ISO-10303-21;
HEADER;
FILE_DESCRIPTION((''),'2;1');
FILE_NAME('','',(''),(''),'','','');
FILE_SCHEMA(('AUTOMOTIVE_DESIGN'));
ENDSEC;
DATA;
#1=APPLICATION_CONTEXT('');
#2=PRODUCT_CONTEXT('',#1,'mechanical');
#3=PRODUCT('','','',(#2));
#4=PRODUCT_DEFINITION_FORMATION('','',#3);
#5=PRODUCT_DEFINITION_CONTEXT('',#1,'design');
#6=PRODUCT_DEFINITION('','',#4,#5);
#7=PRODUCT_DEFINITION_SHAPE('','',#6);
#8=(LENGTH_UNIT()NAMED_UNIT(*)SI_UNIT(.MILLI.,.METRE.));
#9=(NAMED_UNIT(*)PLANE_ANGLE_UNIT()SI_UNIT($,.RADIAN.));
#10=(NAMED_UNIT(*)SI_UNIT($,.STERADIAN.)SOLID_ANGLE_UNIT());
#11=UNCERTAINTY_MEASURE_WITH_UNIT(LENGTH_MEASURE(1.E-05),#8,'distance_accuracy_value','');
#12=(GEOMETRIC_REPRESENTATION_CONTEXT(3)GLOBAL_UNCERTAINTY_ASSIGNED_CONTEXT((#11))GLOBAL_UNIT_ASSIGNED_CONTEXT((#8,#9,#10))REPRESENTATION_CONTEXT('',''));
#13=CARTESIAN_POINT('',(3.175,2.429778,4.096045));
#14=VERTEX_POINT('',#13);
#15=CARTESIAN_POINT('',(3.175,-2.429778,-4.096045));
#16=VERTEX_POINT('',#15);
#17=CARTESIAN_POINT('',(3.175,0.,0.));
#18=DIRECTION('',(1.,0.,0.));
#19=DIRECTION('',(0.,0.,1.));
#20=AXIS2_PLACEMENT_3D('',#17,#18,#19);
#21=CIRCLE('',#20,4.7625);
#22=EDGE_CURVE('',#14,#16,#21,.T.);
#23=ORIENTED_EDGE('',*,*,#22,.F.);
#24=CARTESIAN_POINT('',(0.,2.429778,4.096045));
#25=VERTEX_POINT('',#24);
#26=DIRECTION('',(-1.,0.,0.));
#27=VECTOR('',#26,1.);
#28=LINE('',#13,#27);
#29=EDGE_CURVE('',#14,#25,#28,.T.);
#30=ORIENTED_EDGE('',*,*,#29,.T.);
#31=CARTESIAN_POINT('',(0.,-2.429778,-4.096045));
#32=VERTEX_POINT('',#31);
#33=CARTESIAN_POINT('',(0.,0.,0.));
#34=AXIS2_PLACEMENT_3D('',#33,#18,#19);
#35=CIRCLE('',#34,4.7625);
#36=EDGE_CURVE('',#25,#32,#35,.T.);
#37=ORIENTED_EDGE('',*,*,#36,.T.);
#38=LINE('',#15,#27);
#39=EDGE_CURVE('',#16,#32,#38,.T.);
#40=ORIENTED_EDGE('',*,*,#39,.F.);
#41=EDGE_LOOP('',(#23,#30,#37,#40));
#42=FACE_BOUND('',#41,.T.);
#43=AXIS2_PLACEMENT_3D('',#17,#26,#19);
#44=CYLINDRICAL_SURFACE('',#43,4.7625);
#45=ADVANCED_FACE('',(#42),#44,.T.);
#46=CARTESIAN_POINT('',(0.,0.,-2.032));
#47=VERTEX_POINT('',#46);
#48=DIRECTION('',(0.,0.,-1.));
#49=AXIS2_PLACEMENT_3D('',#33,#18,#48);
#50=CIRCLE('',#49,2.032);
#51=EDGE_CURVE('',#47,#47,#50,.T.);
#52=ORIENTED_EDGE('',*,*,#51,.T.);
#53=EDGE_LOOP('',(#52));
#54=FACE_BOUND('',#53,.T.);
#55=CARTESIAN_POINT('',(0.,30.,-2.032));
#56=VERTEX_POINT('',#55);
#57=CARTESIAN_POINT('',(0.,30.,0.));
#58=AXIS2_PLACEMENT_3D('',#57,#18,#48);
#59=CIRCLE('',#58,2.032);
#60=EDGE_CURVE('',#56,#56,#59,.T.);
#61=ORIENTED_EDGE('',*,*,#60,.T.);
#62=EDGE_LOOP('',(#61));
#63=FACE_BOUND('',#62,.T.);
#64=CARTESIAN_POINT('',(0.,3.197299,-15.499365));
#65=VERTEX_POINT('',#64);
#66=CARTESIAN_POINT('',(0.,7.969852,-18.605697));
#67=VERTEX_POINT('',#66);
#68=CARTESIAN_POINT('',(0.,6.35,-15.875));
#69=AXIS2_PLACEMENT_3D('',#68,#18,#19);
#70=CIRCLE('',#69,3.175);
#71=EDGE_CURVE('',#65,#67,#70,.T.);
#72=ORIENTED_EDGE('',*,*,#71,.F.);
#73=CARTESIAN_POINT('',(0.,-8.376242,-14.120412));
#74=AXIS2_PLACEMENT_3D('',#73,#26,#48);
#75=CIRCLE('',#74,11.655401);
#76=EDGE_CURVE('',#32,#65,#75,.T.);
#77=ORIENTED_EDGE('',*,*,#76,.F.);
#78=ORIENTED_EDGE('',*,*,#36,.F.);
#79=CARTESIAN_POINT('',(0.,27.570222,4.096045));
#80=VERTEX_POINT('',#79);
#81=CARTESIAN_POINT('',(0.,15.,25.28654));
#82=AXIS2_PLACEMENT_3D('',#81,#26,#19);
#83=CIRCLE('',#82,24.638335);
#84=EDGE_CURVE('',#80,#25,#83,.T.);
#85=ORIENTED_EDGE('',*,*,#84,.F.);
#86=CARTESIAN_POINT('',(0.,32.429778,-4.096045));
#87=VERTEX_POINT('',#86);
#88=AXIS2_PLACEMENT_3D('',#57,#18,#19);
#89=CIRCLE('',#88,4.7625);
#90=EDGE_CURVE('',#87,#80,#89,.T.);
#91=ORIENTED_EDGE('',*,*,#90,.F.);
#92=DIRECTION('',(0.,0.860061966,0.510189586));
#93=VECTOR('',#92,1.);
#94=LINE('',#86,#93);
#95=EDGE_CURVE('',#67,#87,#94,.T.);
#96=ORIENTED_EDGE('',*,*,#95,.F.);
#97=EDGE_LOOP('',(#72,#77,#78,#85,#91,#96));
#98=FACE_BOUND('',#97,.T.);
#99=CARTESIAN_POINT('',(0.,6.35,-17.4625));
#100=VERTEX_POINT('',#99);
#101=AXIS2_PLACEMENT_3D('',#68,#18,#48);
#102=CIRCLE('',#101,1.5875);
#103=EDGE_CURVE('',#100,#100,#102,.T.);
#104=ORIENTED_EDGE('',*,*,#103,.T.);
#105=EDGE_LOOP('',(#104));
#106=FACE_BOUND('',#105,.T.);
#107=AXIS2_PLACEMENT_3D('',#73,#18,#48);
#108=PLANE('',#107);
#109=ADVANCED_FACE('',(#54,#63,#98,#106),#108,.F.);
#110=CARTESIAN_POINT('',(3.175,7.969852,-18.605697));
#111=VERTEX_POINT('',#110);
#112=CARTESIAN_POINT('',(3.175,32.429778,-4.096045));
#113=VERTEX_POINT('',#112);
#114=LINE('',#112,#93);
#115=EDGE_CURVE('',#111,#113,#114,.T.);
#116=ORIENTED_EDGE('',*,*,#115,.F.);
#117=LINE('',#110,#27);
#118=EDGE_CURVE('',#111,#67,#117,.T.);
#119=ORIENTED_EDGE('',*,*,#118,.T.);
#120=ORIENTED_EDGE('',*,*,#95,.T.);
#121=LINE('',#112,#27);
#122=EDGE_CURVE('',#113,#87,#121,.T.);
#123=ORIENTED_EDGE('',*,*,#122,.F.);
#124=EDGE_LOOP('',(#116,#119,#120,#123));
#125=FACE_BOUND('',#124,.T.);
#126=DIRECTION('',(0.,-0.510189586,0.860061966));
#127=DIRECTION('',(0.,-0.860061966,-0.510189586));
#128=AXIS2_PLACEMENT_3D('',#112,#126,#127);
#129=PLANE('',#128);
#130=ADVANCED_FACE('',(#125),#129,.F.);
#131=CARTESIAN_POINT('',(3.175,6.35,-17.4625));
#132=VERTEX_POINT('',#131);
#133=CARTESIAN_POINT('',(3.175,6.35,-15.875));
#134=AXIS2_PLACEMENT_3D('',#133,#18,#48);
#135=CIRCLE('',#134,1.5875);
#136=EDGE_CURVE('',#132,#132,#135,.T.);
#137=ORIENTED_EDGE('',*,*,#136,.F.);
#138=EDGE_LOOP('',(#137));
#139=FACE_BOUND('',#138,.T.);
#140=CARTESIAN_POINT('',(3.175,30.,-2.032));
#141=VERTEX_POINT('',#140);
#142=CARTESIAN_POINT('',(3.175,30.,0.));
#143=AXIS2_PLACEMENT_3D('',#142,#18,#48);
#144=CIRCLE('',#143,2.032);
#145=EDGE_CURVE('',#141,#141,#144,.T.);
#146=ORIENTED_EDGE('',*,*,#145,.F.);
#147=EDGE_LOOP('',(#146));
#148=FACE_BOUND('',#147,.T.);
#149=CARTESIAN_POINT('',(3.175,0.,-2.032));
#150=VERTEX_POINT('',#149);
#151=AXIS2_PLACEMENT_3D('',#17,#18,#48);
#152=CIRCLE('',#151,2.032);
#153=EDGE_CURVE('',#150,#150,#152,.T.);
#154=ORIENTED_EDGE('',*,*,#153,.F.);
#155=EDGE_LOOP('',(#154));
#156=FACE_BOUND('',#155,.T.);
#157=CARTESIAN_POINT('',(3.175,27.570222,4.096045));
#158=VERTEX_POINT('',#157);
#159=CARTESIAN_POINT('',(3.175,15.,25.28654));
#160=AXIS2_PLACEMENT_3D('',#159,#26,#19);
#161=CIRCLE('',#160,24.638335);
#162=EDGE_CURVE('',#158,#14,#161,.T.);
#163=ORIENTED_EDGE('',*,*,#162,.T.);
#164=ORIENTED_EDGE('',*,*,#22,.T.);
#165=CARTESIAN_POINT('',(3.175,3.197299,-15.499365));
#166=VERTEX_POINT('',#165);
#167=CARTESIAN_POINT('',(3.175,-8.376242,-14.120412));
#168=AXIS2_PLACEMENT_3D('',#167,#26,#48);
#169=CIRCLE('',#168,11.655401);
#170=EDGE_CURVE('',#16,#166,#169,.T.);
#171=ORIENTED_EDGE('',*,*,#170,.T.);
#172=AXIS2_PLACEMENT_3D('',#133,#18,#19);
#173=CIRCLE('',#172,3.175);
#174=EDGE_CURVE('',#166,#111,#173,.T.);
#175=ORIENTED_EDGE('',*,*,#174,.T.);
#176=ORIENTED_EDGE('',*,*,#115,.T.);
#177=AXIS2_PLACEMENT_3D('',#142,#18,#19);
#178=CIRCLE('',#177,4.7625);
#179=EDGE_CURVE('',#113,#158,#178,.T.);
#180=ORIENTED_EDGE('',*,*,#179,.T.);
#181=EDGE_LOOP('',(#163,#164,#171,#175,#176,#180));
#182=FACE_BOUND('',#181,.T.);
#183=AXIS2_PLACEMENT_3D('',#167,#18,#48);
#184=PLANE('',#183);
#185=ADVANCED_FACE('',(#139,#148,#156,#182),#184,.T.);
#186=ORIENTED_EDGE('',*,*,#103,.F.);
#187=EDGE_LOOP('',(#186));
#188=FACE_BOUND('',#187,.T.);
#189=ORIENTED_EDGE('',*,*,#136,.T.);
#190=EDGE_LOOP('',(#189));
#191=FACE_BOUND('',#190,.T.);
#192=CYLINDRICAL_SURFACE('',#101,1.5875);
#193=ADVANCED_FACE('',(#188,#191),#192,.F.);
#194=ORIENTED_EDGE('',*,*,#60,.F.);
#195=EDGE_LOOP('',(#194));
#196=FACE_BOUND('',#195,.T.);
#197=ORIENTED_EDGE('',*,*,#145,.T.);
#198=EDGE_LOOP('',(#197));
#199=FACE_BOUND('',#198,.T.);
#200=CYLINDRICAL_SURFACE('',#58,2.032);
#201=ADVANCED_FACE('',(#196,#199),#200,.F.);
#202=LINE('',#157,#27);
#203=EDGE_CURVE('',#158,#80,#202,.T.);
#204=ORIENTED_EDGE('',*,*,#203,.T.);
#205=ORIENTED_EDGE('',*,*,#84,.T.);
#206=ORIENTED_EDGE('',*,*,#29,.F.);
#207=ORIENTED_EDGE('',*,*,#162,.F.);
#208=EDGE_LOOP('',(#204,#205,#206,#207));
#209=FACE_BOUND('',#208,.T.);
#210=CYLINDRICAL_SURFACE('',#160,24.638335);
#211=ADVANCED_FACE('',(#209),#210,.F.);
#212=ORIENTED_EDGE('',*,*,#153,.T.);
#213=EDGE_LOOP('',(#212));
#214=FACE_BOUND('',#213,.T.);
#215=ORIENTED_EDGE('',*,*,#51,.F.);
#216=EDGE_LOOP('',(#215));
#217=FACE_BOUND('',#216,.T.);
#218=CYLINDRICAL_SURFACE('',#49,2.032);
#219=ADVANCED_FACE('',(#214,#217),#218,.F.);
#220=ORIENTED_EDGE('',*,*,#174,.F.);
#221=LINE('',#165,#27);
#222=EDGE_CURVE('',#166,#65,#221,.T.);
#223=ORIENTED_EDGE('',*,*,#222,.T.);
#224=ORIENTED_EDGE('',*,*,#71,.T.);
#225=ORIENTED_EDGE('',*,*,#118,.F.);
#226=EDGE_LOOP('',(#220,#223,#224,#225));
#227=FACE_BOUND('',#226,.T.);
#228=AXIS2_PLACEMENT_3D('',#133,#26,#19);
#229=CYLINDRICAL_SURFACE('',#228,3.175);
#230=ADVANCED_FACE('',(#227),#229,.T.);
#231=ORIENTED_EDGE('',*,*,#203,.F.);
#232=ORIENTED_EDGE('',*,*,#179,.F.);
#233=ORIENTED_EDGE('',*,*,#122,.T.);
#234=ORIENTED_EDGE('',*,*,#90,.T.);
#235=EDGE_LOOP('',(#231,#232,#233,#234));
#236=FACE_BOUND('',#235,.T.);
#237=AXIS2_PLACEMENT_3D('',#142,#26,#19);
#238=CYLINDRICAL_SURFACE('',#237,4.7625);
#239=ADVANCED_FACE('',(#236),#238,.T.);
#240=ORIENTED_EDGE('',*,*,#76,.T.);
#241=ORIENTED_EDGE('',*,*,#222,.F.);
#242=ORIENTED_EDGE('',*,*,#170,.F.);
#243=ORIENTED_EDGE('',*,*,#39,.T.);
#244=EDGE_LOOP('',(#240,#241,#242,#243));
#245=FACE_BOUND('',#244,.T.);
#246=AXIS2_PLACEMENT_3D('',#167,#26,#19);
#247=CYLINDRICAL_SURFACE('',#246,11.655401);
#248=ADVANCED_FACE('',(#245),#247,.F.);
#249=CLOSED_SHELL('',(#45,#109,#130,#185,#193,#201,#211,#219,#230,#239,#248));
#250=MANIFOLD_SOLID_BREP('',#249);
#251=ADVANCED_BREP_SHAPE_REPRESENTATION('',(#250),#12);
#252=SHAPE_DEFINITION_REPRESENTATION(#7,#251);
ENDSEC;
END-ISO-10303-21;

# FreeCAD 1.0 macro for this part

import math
import FreeCAD as App
import Part
import Sketcher
from FreeCAD import Vector
Q = App.Units.Quantity

doc = App.newDocument("Part")
body = doc.addObject("PartDesign::Body", "Body")

# Sketch on YZ plane
sketch1 = body.newObject("Sketcher::SketchObject", "Sketch")
sketch1.AttachmentSupport = (doc.getObject("YZ_Plane"), [""])
sketch1.MapMode = "FlatFace"
sketch1.addGeometry([
    Part.LineSegment(Vector(8, -18.6, 0), Vector(32.4, -4.1, 0)),  # 0
    Part.ArcOfCircle(Part.Circle(Vector(30, 0, 0), Vector(0, 0, 1), 4.8), math.radians(-59), math.radians(121)),  # 1
    Part.ArcOfCircle(Part.Circle(Vector(15, 25.3, 0), Vector(0, 0, 1), 24.6), math.radians(-121), math.radians(-59)),  # 2
    Part.ArcOfCircle(Part.Circle(Vector(0, 0, 0), Vector(0, 0, 1), 4.8), math.radians(59), math.radians(239)),  # 3
    Part.ArcOfCircle(Part.Circle(Vector(-8.4, -14.1, 0), Vector(0, 0, 1), 11.7), math.radians(-7), math.radians(59)),  # 4
    Part.ArcOfCircle(Part.Circle(Vector(6.3, -15.9, 0), Vector(0, 0, 1), 3.2), math.radians(173), math.radians(301)),  # 5
], False)
sketch1.addConstraint([
    Sketcher.Constraint("Tangent", 0, 2, 1, 1),
    Sketcher.Constraint("Tangent", 1, 2, 2, 2),
    Sketcher.Constraint("Tangent", 2, 1, 3, 1),
    Sketcher.Constraint("Tangent", 3, 2, 4, 2),
    Sketcher.Constraint("Tangent", 4, 1, 5, 1),
    Sketcher.Constraint("Tangent", 5, 2, 0, 1),
    Sketcher.Constraint("Coincident", 3, 3, -1, 1),
    Sketcher.Constraint("Equal", 1, 3),
    Sketcher.Constraint("PointOnObject", 1, 3, -1),
    Sketcher.Constraint("Horizontal", 0, 2, 3, 2),
    Sketcher.Constraint("Radius", 1, Q("0.1875 in")),
    Sketcher.Constraint("Radius", 5, Q("0.125 in")),
    Sketcher.Constraint("DistanceX", -1, 1, 5, 3, Q("0.25 in")),
    Sketcher.Constraint("Radius", 4, Q("11.655401 mm")),
    Sketcher.Constraint("DistanceY", 5, 3, -1, 1, Q("0.625 in")),
    Sketcher.Constraint("Radius", 2, Q("24.638335 mm")),
])
pad1 = body.newObject("PartDesign::Pad", "Pad")
pad1.Profile = sketch1
pad1.Length = Q("0.125 in")

# Sketch on YZ plane
sketch2 = body.newObject("Sketcher::SketchObject", "Sketch001")
sketch2.AttachmentSupport = (doc.getObject("YZ_Plane"), [""])
sketch2.MapMode = "FlatFace"
sketch2.AttachmentOffset = App.Placement(Vector(0, 0, 0.125 * 25.4), App.Rotation())
sketch2.addGeometry([
    Part.Circle(Vector(30, 0, 0), Vector(0, 0, 1), 2),
    Part.Circle(Vector(0, 0, 0), Vector(0, 0, 1), 2),
    Part.Circle(Vector(6.3, -15.9, 0), Vector(0, 0, 1), 1.6),
], False)
sketch2.addConstraint([
    Sketcher.Constraint("Coincident", 1, 3, -1, 1),
    Sketcher.Constraint("Equal", 0, 1),
    Sketcher.Constraint("PointOnObject", 0, 3, -1),
    Sketcher.Constraint("Diameter", 0, Q("0.16 in")),
    Sketcher.Constraint("Diameter", 2, Q("0.125 in")),
    Sketcher.Constraint("DistanceX", -1, 1, 2, 3, Q("0.25 in")),
    Sketcher.Constraint("DistanceY", 2, 3, -1, 1, Q("0.625 in")),
    Sketcher.Constraint("DistanceX", -1, 1, 0, 3, Q("30 mm")),
])
pocket1 = body.newObject("PartDesign::Pocket", "Pocket")
pocket1.Profile = sketch2
pocket1.Type = "ThroughAll"

doc.recompute()
